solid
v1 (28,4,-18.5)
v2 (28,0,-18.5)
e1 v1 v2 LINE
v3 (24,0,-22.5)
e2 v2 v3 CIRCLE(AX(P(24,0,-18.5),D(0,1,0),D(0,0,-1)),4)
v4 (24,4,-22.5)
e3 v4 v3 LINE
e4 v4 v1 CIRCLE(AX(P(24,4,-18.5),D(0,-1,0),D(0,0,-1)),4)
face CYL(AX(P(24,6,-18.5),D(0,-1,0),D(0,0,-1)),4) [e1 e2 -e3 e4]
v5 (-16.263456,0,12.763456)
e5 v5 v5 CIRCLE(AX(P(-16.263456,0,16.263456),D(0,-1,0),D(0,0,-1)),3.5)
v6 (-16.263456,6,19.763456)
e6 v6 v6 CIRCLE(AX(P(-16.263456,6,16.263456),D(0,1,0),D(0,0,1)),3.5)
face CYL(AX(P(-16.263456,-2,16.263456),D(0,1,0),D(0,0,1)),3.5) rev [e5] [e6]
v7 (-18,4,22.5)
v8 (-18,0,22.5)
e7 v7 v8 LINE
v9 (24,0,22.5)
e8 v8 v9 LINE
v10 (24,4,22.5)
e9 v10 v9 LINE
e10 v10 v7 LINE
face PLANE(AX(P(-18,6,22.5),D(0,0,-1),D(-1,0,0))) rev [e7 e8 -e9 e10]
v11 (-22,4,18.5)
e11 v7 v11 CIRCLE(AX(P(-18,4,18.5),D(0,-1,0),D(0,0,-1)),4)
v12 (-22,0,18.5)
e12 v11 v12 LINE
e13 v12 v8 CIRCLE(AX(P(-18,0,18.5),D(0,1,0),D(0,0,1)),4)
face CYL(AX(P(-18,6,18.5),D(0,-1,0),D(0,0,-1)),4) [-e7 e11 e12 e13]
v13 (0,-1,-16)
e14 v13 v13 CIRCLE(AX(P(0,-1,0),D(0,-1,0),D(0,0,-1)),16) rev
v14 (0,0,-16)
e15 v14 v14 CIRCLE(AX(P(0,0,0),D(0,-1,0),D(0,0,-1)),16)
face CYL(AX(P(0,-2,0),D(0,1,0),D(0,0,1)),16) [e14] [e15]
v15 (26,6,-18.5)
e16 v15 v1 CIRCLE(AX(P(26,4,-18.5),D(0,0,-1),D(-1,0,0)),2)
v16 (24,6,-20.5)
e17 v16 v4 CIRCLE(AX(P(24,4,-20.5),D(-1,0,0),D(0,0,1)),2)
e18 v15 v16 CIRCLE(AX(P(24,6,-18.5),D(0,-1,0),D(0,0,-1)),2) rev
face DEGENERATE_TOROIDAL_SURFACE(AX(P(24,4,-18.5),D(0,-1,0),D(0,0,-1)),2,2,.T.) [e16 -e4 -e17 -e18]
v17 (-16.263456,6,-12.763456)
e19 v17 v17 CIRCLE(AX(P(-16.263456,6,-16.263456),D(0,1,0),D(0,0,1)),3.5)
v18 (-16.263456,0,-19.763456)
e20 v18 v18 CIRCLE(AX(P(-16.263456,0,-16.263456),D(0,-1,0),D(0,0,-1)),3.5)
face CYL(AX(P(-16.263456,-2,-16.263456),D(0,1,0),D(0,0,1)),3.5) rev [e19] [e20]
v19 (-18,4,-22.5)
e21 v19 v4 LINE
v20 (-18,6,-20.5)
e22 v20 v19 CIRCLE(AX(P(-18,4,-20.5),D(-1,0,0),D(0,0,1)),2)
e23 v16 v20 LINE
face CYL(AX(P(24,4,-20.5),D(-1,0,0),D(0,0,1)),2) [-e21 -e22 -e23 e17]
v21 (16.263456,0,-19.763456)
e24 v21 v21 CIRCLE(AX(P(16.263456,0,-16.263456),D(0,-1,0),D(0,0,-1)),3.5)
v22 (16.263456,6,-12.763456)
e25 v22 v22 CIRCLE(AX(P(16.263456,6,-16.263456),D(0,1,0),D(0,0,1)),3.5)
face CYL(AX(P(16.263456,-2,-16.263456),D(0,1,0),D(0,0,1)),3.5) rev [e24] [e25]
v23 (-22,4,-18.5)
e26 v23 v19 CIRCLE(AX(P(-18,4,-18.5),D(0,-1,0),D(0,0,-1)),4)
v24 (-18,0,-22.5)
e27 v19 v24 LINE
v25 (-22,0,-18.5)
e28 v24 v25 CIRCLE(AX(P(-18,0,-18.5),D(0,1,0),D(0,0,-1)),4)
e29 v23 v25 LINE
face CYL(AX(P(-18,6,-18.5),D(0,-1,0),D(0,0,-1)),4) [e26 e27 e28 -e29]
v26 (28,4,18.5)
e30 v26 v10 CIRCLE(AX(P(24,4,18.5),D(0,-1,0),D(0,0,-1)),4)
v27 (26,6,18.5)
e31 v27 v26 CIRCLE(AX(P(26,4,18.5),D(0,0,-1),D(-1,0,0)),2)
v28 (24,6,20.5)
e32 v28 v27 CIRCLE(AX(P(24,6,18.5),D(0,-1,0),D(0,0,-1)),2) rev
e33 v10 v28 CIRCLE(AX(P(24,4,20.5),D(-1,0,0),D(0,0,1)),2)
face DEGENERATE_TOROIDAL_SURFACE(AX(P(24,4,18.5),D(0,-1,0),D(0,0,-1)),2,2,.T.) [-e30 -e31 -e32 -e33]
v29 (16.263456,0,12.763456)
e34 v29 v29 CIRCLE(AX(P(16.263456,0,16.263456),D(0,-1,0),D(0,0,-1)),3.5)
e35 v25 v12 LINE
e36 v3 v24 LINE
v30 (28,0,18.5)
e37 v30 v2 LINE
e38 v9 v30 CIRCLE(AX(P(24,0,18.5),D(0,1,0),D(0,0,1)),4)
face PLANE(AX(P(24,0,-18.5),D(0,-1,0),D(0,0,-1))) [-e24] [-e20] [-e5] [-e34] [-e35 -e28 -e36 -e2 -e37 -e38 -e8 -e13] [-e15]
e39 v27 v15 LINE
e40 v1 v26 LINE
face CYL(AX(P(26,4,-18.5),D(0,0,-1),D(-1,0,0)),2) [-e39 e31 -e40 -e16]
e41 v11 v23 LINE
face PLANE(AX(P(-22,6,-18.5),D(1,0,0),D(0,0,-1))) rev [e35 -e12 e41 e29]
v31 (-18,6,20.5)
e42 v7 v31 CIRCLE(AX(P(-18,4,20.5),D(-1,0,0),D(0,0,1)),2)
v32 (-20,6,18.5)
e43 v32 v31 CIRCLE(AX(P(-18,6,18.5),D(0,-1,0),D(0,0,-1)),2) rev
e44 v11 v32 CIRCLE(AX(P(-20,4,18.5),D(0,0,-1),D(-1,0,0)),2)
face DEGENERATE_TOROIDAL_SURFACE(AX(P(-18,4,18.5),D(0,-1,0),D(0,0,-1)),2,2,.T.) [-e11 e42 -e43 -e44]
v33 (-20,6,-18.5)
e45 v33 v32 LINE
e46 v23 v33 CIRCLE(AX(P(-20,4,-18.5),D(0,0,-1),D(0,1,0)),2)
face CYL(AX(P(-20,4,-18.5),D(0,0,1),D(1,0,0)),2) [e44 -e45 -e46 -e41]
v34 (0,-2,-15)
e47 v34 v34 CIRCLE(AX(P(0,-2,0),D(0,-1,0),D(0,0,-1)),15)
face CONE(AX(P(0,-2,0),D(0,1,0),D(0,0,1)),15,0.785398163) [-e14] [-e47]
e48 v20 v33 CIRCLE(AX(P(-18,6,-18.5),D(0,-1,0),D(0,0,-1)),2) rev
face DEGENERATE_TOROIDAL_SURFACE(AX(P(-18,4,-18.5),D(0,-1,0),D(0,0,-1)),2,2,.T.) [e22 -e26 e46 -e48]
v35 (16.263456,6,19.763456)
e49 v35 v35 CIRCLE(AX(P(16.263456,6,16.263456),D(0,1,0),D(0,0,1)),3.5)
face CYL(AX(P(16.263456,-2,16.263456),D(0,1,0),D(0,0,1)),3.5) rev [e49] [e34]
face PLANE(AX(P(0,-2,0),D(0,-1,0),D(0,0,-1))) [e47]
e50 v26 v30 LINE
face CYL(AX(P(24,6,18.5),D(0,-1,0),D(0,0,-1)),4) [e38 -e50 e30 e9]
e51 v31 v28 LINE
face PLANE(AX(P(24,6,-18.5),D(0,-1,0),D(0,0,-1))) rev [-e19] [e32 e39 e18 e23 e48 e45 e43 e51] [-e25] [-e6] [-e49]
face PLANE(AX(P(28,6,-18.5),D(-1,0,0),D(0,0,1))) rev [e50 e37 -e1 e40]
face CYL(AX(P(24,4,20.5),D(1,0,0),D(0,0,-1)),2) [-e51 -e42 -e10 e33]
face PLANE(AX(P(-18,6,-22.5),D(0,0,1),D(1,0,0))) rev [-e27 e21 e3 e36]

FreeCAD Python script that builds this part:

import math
import FreeCAD as App
import Part
import Sketcher
from FreeCAD import Vector
Q = App.Units.Quantity


def edges_at(feature, points):
    """Names of the edges that pass closest to the given points."""
    edges = feature.Shape.Edges
    near = lambda p: min(range(len(edges)), key=lambda i: edges[i].distToShape(Part.Vertex(*p))[0])
    return sorted({f"Edge{near(p) + 1}" for p in points})

doc = App.newDocument("Part")
body = doc.addObject("PartDesign::Body", "Body")

# Sketch on XZ plane
sketch1 = body.newObject("Sketcher::SketchObject", "Sketch")
sketch1.AttachmentSupport = (doc.getObject("XZ_Plane"), [""])
sketch1.MapMode = "FlatFace"
sketch1.addGeometry(Part.LineSegment(Vector(24, -22.5, 0), Vector(-18, -22.5, 0)), False)
sketch1.addGeometry(Part.ArcOfCircle(Part.Circle(Vector(-18, -18.5, 0), Vector(0, 0, 1), 4), math.radians(180), math.radians(270)), False)
sketch1.addGeometry(Part.LineSegment(Vector(-22, -18.5, 0), Vector(-22, 18.5, 0)), False)
sketch1.addGeometry(Part.ArcOfCircle(Part.Circle(Vector(-18, 18.5, 0), Vector(0, 0, 1), 4), math.radians(90), math.radians(180)), False)
sketch1.addGeometry(Part.LineSegment(Vector(-18, 22.5, 0), Vector(24, 22.5, 0)), False)
sketch1.addGeometry(Part.ArcOfCircle(Part.Circle(Vector(24, 18.5, 0), Vector(0, 0, 1), 4), math.radians(0), math.radians(90)), False)
sketch1.addGeometry(Part.LineSegment(Vector(28, 18.5, 0), Vector(28, -18.5, 0)), False)
sketch1.addGeometry(Part.ArcOfCircle(Part.Circle(Vector(24, -18.5, 0), Vector(0, 0, 1), 4), math.radians(-90), math.radians(0)), False)
sketch1.addConstraint(Sketcher.Constraint("Tangent", 0, 2, 1, 2))
sketch1.addConstraint(Sketcher.Constraint("Tangent", 1, 1, 2, 1))
sketch1.addConstraint(Sketcher.Constraint("Tangent", 2, 2, 3, 2))
sketch1.addConstraint(Sketcher.Constraint("Tangent", 3, 1, 4, 1))
sketch1.addConstraint(Sketcher.Constraint("Tangent", 4, 2, 5, 2))
sketch1.addConstraint(Sketcher.Constraint("Tangent", 5, 1, 6, 1))
sketch1.addConstraint(Sketcher.Constraint("Tangent", 6, 2, 7, 2))
sketch1.addConstraint(Sketcher.Constraint("Tangent", 7, 1, 0, 1))
sketch1.addConstraint(Sketcher.Constraint("Horizontal", 0))
sketch1.addConstraint(Sketcher.Constraint("Vertical", 2))
sketch1.addConstraint(Sketcher.Constraint("Horizontal", 4))
sketch1.addConstraint(Sketcher.Constraint("Vertical", 6))
sketch1.addConstraint(Sketcher.Constraint("Equal", 1, 3))
sketch1.addConstraint(Sketcher.Constraint("Equal", 3, 5))
sketch1.addConstraint(Sketcher.Constraint("Equal", 5, 7))
sketch1.addConstraint(Sketcher.Constraint("Radius", 1, Q("4 mm")))
sketch1.addConstraint(Sketcher.Constraint("DistanceX", 0, 2, 0, 1, Q("42 mm")))
sketch1.addConstraint(Sketcher.Constraint("DistanceY", 2, 1, 2, 2, Q("37 mm")))
sketch1.addConstraint(Sketcher.Constraint("DistanceX", 1, 3, -1, 1, Q("18 mm")))
sketch1.addConstraint(Sketcher.Constraint("DistanceY", 1, 3, -1, 1, Q("18.5 mm")))
pad1 = body.newObject("PartDesign::Pad", "Pad")
pad1.Profile = sketch1
pad1.Length = 6
pad1.Reversed = True
doc.recompute()

fillet = body.newObject("PartDesign::Fillet", "Fillet")
fillet.Base = (pad1, edges_at(pad1, [
    (-20.828, 6, -21.328),
    (-22, 6, 0),
    (-20.828, 6, 21.328),
    (3, 6, 22.5),
    (26.828, 6, 21.328),
    (28, 6, 0),
    (26.828, 6, -21.328),
    (3, 6, -22.5),
]))
fillet.Radius = 2

# Sketch on XZ plane
sketch2 = body.newObject("Sketcher::SketchObject", "Sketch001")
sketch2.AttachmentSupport = (doc.getObject("XZ_Plane"), [""])
sketch2.MapMode = "FlatFace"
sketch2.addGeometry(Part.Circle(Vector(0, 0, 0), Vector(0, 0, 1), 16), False)
sketch2.addConstraint(Sketcher.Constraint("Coincident", 0, 3, -1, 1))
sketch2.addConstraint(Sketcher.Constraint("Diameter", 0, Q("32 mm")))
pad2 = body.newObject("PartDesign::Pad", "Pad001")
pad2.Profile = sketch2
pad2.Length = 2
doc.recompute()

chamfer = body.newObject("PartDesign::Chamfer", "Chamfer")
chamfer.Base = (pad2, edges_at(pad2, [(0, -2, 16)]))
chamfer.Size = 1

# Sketch on XZ plane
sketch3 = body.newObject("Sketcher::SketchObject", "Sketch002")
sketch3.AttachmentSupport = (doc.getObject("XZ_Plane"), [""])
sketch3.MapMode = "FlatFace"
sketch3.AttachmentOffset = App.Placement(Vector(0, 0, -6), App.Rotation())
sketch3.addGeometry(Part.Circle(Vector(-16.3, -16.3, 0), Vector(0, 0, 1), 3.5), False)
sketch3.addGeometry(Part.Circle(Vector(16.3, -16.3, 0), Vector(0, 0, 1), 3.5), False)
sketch3.addGeometry(Part.Circle(Vector(16.3, 16.3, 0), Vector(0, 0, 1), 3.5), False)
sketch3.addGeometry(Part.Circle(Vector(-16.3, 16.3, 0), Vector(0, 0, 1), 3.5), False)
sketch3.addConstraint(Sketcher.Constraint("Equal", 0, 1))
sketch3.addConstraint(Sketcher.Constraint("Equal", 1, 2))
sketch3.addConstraint(Sketcher.Constraint("Equal", 2, 3))
sketch3.addConstraint(Sketcher.Constraint("Symmetric", 0, 3, 2, 3, -1, 1))
sketch3.addConstraint(Sketcher.Constraint("Symmetric", 1, 3, 3, 3, -1, 1))
sketch3.addConstraint(Sketcher.Constraint("Symmetric", 0, 3, 1, 3, -2))
sketch3.addConstraint(Sketcher.Constraint("Diameter", 0, Q("7 mm")))
sketch3.addConstraint(Sketcher.Constraint("DistanceX", 0, 3, 1, 3, Q("32.526912 mm")))
sketch3.addConstraint(Sketcher.Constraint("DistanceY", 1, 3, 2, 3, Q("32.526912 mm")))
pocket1 = body.newObject("PartDesign::Pocket", "Pocket")
pocket1.Profile = sketch3
pocket1.Type = "ThroughAll"
pocket1.Reversed = True

doc.recompute()
